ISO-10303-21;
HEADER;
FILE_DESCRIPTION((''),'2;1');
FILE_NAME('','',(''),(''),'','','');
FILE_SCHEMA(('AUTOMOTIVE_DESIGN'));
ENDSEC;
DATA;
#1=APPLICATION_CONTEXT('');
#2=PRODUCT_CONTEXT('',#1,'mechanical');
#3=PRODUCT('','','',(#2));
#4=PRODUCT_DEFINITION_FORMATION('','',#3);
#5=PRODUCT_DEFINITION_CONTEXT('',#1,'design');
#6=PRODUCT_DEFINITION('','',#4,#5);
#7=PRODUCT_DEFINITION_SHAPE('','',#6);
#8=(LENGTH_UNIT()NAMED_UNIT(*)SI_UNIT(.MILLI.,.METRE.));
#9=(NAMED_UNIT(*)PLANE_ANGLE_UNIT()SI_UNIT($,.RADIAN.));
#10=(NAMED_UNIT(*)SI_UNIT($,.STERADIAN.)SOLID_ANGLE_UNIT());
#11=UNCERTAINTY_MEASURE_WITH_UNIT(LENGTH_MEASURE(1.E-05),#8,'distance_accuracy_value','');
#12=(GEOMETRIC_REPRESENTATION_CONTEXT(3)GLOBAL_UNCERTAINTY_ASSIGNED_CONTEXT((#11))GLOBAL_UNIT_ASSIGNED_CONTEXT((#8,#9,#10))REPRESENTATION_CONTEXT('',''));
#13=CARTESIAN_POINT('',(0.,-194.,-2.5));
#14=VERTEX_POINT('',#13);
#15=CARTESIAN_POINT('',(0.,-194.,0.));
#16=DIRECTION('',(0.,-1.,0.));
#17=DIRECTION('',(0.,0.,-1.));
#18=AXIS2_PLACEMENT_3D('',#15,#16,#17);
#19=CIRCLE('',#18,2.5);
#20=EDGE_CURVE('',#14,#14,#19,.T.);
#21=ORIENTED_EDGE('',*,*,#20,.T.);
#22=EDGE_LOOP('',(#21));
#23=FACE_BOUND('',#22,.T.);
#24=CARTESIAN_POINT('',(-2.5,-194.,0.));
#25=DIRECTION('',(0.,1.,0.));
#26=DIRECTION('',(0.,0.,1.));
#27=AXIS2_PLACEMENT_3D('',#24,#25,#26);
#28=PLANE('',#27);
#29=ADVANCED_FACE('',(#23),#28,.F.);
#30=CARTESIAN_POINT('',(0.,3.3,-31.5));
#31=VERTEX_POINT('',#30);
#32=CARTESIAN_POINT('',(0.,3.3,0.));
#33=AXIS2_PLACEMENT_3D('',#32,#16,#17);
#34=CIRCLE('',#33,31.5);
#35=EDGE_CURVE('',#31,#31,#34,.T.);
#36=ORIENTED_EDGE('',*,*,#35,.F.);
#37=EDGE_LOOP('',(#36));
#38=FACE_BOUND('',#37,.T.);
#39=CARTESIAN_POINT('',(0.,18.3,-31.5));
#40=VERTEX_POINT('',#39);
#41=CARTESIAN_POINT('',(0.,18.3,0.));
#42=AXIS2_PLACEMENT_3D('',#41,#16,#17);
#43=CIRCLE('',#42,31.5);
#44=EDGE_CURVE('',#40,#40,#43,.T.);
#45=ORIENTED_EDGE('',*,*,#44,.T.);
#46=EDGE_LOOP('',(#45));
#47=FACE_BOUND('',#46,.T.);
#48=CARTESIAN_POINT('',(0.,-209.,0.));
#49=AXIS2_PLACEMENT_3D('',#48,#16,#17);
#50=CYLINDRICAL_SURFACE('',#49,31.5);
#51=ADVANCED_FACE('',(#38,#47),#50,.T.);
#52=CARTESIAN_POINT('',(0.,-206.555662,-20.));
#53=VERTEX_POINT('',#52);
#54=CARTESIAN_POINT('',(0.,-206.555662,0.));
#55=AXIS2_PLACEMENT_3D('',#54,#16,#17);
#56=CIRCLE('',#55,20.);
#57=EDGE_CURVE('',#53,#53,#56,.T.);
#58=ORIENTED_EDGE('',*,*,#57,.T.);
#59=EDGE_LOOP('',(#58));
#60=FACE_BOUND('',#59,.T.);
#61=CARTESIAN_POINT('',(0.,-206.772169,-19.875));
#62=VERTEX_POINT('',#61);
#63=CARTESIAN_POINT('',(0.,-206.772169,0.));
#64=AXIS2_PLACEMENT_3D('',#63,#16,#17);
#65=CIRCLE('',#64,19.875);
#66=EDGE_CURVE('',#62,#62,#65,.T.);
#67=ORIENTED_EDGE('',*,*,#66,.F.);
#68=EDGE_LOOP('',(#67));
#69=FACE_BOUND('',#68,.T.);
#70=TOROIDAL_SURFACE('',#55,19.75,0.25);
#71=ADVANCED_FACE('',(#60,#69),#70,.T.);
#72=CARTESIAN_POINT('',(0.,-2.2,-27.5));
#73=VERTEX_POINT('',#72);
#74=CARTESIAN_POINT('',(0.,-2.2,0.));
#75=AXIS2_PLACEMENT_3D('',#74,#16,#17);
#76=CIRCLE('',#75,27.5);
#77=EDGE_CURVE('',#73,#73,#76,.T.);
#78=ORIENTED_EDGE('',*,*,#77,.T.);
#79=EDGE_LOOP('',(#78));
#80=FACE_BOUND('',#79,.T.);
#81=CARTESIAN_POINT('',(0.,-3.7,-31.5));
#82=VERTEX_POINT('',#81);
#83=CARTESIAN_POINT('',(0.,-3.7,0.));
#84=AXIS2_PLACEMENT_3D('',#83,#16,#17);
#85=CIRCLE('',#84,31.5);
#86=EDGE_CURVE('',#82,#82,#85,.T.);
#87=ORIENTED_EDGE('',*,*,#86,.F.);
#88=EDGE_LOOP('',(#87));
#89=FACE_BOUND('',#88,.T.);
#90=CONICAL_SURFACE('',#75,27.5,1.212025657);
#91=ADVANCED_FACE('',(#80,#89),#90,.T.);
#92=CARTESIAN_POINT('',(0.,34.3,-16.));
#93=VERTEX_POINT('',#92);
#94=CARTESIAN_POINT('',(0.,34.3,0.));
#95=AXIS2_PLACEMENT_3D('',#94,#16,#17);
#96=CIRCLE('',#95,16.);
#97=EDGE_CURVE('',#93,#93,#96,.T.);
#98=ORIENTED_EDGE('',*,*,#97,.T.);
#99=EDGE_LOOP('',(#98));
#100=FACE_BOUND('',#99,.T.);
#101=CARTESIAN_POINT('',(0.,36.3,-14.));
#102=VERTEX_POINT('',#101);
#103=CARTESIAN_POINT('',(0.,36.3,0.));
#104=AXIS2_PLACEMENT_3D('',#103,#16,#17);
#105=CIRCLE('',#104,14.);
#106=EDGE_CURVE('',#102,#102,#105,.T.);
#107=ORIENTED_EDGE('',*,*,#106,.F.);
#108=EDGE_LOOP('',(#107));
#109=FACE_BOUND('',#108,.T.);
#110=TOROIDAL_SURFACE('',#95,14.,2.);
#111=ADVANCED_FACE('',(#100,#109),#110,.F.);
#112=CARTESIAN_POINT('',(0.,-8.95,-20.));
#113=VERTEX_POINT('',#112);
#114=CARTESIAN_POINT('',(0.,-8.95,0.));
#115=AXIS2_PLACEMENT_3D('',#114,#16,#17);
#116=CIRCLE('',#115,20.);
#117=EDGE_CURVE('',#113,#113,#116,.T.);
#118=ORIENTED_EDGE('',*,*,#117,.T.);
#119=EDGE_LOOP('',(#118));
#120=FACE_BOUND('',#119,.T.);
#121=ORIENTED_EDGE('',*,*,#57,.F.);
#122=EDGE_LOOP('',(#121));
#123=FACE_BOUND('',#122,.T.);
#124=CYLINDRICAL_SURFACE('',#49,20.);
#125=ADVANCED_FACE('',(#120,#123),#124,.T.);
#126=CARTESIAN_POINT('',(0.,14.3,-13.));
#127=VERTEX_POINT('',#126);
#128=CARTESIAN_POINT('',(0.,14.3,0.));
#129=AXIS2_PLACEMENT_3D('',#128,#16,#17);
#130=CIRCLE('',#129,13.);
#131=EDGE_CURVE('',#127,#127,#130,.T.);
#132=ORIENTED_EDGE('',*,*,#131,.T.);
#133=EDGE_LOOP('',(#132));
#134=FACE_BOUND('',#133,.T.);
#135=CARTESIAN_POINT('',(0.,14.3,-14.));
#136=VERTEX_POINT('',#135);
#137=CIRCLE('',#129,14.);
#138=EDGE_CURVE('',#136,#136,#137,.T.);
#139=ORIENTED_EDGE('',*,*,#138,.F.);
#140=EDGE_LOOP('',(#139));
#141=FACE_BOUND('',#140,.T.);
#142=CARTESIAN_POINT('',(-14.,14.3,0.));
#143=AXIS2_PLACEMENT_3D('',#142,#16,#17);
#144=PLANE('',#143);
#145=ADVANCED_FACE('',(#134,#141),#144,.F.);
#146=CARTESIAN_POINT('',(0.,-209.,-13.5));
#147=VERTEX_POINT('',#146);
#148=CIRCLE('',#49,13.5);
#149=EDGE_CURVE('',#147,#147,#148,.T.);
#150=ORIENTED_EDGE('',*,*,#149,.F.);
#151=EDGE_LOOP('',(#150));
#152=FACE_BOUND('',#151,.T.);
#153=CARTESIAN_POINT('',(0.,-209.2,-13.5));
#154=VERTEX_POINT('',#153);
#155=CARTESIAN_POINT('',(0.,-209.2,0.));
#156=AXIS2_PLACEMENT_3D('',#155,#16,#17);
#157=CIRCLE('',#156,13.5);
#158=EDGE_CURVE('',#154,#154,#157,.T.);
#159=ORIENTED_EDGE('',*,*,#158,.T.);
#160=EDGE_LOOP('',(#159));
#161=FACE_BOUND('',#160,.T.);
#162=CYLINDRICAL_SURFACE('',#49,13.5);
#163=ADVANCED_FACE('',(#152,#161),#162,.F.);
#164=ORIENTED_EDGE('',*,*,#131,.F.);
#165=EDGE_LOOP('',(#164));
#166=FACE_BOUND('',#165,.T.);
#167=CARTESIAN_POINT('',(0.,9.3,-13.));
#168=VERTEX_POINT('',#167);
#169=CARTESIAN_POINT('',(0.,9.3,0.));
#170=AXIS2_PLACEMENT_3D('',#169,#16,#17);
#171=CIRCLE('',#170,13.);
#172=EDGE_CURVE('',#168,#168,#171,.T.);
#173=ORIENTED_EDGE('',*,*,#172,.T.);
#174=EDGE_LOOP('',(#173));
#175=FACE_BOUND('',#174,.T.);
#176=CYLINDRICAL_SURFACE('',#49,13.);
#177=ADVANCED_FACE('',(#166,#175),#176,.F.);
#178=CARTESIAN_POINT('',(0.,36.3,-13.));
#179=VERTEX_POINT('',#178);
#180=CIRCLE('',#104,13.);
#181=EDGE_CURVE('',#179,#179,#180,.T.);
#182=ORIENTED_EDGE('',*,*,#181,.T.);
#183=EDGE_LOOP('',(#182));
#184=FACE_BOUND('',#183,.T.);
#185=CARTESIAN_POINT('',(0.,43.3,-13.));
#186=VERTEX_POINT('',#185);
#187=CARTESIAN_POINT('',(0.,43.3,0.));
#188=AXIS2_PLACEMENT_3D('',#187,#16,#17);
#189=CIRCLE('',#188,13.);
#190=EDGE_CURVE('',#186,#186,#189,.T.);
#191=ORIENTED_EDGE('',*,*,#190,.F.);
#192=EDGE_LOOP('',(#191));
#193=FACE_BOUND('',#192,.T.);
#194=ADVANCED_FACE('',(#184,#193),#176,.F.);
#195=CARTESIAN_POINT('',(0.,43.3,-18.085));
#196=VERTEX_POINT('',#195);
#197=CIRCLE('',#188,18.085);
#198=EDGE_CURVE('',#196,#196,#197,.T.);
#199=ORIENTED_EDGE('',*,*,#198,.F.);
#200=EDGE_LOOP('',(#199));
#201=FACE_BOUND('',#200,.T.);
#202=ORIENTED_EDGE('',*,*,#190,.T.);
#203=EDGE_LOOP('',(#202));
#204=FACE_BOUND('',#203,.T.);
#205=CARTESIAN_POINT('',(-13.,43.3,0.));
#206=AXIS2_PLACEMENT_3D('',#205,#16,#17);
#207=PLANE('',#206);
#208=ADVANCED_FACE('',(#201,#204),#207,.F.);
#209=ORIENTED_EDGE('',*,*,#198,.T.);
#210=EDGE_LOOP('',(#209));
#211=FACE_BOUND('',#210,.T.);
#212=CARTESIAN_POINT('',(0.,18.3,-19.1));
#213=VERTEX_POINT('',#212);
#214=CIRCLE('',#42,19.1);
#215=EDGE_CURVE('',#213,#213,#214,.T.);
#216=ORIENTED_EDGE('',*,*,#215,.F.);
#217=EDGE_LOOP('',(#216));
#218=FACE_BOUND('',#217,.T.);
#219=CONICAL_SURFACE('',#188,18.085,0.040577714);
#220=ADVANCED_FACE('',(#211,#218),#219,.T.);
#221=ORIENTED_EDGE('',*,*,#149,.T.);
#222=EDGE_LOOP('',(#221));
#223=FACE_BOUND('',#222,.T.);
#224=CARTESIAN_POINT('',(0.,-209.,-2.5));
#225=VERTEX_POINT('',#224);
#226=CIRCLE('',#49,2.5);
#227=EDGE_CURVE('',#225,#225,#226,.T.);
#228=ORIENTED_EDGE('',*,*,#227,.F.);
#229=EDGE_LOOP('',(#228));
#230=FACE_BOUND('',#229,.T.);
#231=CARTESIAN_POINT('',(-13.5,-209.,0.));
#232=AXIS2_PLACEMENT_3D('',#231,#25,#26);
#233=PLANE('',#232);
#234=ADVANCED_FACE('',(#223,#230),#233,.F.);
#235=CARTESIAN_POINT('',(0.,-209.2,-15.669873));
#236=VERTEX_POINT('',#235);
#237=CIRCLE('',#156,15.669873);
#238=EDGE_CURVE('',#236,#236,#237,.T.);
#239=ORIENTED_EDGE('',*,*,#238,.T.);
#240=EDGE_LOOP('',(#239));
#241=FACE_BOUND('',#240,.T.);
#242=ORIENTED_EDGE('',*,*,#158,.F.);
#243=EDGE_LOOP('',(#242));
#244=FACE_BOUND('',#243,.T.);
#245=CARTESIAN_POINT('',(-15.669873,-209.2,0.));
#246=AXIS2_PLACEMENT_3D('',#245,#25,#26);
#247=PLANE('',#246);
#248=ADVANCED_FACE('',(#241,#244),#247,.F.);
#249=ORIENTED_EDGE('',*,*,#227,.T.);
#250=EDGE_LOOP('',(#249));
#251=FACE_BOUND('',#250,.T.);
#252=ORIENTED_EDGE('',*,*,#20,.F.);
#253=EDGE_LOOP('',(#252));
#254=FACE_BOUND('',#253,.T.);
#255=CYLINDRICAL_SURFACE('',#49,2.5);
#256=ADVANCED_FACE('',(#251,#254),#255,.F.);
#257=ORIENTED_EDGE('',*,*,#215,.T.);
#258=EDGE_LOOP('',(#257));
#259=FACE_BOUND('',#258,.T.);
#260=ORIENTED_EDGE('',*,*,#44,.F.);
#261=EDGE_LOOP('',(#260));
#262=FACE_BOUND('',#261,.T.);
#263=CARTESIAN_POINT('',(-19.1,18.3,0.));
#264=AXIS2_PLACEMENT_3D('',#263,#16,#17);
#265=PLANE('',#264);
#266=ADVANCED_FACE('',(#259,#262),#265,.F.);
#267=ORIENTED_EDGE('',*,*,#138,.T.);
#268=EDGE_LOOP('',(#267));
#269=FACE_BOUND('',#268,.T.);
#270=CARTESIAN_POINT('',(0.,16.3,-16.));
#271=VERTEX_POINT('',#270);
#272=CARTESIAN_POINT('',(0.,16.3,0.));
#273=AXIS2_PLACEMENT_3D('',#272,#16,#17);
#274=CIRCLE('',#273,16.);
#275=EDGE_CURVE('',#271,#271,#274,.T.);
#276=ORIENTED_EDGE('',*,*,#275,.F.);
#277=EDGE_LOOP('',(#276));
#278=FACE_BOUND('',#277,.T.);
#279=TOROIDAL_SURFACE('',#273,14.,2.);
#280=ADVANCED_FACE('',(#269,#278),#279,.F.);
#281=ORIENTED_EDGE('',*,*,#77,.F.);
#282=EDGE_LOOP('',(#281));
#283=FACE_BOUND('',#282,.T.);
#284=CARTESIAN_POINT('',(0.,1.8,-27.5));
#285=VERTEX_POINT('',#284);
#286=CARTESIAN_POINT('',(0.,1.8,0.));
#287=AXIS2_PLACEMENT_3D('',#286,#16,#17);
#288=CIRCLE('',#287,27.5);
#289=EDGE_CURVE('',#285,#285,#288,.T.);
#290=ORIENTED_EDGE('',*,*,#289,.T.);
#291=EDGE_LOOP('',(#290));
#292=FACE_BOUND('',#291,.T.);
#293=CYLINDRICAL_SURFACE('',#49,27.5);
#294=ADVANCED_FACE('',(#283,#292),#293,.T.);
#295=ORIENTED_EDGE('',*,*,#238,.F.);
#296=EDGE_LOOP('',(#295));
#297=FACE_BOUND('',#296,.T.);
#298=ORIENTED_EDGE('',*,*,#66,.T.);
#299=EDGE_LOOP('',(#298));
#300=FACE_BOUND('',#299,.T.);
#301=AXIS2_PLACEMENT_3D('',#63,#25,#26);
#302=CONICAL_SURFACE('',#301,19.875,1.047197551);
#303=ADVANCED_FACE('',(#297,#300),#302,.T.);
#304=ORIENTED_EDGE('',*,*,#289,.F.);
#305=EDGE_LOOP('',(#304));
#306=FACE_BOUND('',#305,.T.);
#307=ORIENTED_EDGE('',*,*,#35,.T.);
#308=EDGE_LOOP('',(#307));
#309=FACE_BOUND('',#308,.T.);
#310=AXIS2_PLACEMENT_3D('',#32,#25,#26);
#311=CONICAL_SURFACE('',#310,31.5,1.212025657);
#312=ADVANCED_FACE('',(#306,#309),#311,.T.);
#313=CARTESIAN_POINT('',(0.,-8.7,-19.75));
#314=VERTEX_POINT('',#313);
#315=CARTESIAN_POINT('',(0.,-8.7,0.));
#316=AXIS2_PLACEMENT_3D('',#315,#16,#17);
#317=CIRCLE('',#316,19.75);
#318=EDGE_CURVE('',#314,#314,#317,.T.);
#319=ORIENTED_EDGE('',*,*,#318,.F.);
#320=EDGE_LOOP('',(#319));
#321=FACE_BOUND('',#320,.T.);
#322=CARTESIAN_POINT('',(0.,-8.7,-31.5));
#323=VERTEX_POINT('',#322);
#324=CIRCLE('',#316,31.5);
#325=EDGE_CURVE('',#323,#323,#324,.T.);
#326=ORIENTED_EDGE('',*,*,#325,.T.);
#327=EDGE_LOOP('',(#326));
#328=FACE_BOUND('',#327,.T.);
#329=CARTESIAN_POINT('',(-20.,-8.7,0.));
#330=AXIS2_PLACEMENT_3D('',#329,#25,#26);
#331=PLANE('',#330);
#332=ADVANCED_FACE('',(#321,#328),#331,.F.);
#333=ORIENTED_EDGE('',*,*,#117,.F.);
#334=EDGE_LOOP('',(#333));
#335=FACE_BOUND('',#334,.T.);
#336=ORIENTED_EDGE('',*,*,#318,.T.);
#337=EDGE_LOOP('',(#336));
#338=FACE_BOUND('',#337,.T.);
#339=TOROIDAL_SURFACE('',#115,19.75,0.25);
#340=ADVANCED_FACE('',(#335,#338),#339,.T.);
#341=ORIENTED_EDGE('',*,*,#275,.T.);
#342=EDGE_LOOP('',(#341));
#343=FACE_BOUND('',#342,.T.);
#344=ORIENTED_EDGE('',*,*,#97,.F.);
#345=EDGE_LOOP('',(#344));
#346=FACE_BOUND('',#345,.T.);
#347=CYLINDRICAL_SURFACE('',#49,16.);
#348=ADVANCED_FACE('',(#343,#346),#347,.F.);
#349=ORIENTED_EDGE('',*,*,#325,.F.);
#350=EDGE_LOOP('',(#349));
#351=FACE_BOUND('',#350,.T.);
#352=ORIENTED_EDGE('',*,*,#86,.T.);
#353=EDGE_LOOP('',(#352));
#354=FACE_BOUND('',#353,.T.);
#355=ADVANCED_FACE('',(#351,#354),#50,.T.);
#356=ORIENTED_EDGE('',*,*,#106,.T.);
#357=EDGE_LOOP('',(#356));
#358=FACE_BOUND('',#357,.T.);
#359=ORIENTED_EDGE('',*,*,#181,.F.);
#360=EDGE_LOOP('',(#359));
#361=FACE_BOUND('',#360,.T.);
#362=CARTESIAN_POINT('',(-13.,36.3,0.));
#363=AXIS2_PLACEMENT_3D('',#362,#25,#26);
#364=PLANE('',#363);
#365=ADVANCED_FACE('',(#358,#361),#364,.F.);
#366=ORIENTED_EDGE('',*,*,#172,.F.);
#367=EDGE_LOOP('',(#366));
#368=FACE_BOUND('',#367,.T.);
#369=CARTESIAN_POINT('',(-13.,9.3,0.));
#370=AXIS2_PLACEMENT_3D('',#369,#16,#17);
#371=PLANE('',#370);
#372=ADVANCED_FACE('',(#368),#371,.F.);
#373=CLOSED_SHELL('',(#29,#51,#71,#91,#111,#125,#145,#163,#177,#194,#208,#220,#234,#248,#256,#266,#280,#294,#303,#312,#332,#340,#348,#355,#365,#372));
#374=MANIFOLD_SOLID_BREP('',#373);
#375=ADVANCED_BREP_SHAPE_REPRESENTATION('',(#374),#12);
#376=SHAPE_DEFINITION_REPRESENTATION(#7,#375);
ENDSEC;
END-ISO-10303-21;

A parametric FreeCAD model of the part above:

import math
import FreeCAD as App
import Part
import Sketcher

V = App.Vector
Q = App.Units.Quantity

doc = App.newDocument("Part")
body = doc.addObject("PartDesign::Body", "Body")

sketch1 = body.newObject("Sketcher::SketchObject", "Sketch")
sketch1.AttachmentSupport = (doc.getObject("XY_Plane"), [""])
sketch1.MapMode = "FlatFace"
sketch1.addGeometry([
    Part.LineSegment(V(-13, 252.3, 0), V(-18.09, 252.3, 0)),
    Part.LineSegment(V(-18.09, 252.3, 0), V(-19.1, 227.3, 0)),
    Part.LineSegment(V(-19.1, 227.3, 0), V(-31.5, 227.3, 0)),
    Part.LineSegment(V(-31.5, 227.3, 0), V(-31.5, 212.3, 0)),
    Part.LineSegment(V(-31.5, 212.3, 0), V(-27.5, 210.8, 0)),
    Part.LineSegment(V(-27.5, 210.8, 0), V(-27.5, 206.8, 0)),
    Part.LineSegment(V(-27.5, 206.8, 0), V(-31.5, 205.3, 0)),
    Part.LineSegment(V(-31.5, 205.3, 0), V(-31.5, 200.3, 0)),
    Part.LineSegment(V(-31.5, 200.3, 0), V(-19.75, 200.3, 0)),
    Part.ArcOfCircle(Part.Circle(V(-19.75, 200.05, 0), V(0, 0, 1), 0.25), math.radians(90), math.radians(180)),
    Part.LineSegment(V(-20, 200.05, 0), V(-20, 2.44, 0)),
    Part.ArcOfCircle(Part.Circle(V(-19.75, 2.44, 0), V(0, 0, 1), 0.25), math.radians(180), math.radians(240)),
    Part.LineSegment(V(-19.88, 2.23, 0), V(-15.67, -0.2, 0)),
    Part.LineSegment(V(-15.67, -0.2, 0), V(-13.5, -0.2, 0)),
    Part.LineSegment(V(-13.5, -0.2, 0), V(-13.5, 0, 0)),
    Part.LineSegment(V(-13.5, 0, 0), V(-2.5, 0, 0)),
    Part.LineSegment(V(-2.5, 0, 0), V(-2.5, 15, 0)),
    Part.LineSegment(V(-2.5, 15, 0), V(0, 15, 0)),
    Part.LineSegment(V(0, 15, 0), V(0, 218.3, 0)),
    Part.LineSegment(V(0, 218.3, 0), V(-13, 218.3, 0)),
    Part.LineSegment(V(-13, 218.3, 0), V(-13, 223.3, 0)),
    Part.LineSegment(V(-13, 223.3, 0), V(-14, 223.3, 0)),
    Part.ArcOfCircle(Part.Circle(V(-14, 225.3, 0), V(0, 0, 1), 2), math.radians(-180), math.radians(-90)),
    Part.LineSegment(V(-16, 225.3, 0), V(-16, 243.3, 0)),
    Part.ArcOfCircle(Part.Circle(V(-14, 243.3, 0), V(0, 0, 1), 2), math.radians(90), math.radians(180)),
    Part.LineSegment(V(-14, 245.3, 0), V(-13, 245.3, 0)),
    Part.LineSegment(V(-13, 245.3, 0), V(-13, 252.3, 0)),
], False)
sketch1.addConstraint([
    Sketcher.Constraint("Coincident", 0, 2, 1, 1),
    Sketcher.Constraint("Coincident", 1, 2, 2, 1),
    Sketcher.Constraint("Coincident", 2, 2, 3, 1),
    Sketcher.Constraint("Coincident", 3, 2, 4, 1),
    Sketcher.Constraint("Coincident", 4, 2, 5, 1),
    Sketcher.Constraint("Coincident", 5, 2, 6, 1),
    Sketcher.Constraint("Coincident", 6, 2, 7, 1),
    Sketcher.Constraint("Coincident", 7, 2, 8, 1),
    Sketcher.Constraint("Tangent", 8, 2, 9, 1),
    Sketcher.Constraint("Tangent", 9, 2, 10, 1),
    Sketcher.Constraint("Tangent", 10, 2, 11, 1),
    Sketcher.Constraint("Tangent", 11, 2, 12, 1),
    Sketcher.Constraint("Coincident", 12, 2, 13, 1),
    Sketcher.Constraint("Coincident", 13, 2, 14, 1),
    Sketcher.Constraint("Coincident", 14, 2, 15, 1),
    Sketcher.Constraint("Coincident", 15, 2, 16, 1),
    Sketcher.Constraint("Coincident", 16, 2, 17, 1),
    Sketcher.Constraint("Coincident", 17, 2, 18, 1),
    Sketcher.Constraint("Coincident", 18, 2, 19, 1),
    Sketcher.Constraint("Coincident", 19, 2, 20, 1),
    Sketcher.Constraint("Coincident", 20, 2, 21, 1),
    Sketcher.Constraint("Tangent", 21, 2, 22, 2),
    Sketcher.Constraint("Tangent", 22, 1, 23, 1),
    Sketcher.Constraint("Tangent", 23, 2, 24, 2),
    Sketcher.Constraint("Tangent", 24, 1, 25, 1),
    Sketcher.Constraint("Coincident", 25, 2, 26, 1),
    Sketcher.Constraint("Coincident", 26, 2, 0, 1),
    Sketcher.Constraint("Horizontal", 0),
    Sketcher.Constraint("Horizontal", 2),
    Sketcher.Constraint("Vertical", 3),
    Sketcher.Constraint("Vertical", 5),
    Sketcher.Constraint("Vertical", 7),
    Sketcher.Constraint("Horizontal", 8),
    Sketcher.Constraint("Vertical", 10),
    Sketcher.Constraint("Horizontal", 13),
    Sketcher.Constraint("Vertical", 14),
    Sketcher.Constraint("Horizontal", 15),
    Sketcher.Constraint("Vertical", 16),
    Sketcher.Constraint("Horizontal", 17),
    Sketcher.Constraint("Vertical", 18),
    Sketcher.Constraint("Horizontal", 19),
    Sketcher.Constraint("Vertical", 20),
    Sketcher.Constraint("Horizontal", 21),
    Sketcher.Constraint("Vertical", 23),
    Sketcher.Constraint("Horizontal", 25),
    Sketcher.Constraint("Vertical", 26),
    Sketcher.Constraint("Equal", 9, 11),
    Sketcher.Constraint("Equal", 22, 24),
    Sketcher.Constraint("PointOnObject", 14, 2, -1),
    Sketcher.Constraint("PointOnObject", 17, 2, -2),
    Sketcher.Constraint("Vertical", 3, 2, 6, 2),
    Sketcher.Constraint("Vertical", 20, 2, 25, 2),
    Sketcher.Constraint("Equal", 3, 16),
    Sketcher.Constraint("Equal", 7, 20),
    Sketcher.Constraint("Equal", 4, 6),
    Sketcher.Constraint("Radius", 22, 2.0),
    Sketcher.Constraint("DistanceX", 15, 1, 15, 2, 11.0),
    Sketcher.Constraint("DistanceX", 19, 2, 19, 1, 13.0),
    Sketcher.Constraint("DistanceX", 21, 2, 21, 1, 1.0),
    Sketcher.Constraint("DistanceY", 3, 2, 3, 1, 15.0),
    Sketcher.Constraint("DistanceY", 5, 2, 5, 1, 4.0),
    Sketcher.Constraint("DistanceY", 7, 2, 7, 1, 5.0),
    Sketcher.Constraint("DistanceY", 23, 1, 23, 2, 18.0),
    Sketcher.Constraint("DistanceY", 26, 1, 26, 2, 7.0),
    Sketcher.Constraint("Angle", 12, Q("-30 deg")),
    Sketcher.Constraint("Radius", 9, 0.25),
    Sketcher.Constraint("DistanceX", 2, 2, 2, 1, 12.4),
    Sketcher.Constraint("DistanceX", 17, 1, 17, 2, 2.5),
    Sketcher.Constraint("DistanceY", 14, 1, 14, 2, 0.2),
    Sketcher.Constraint("DistanceY", 18, 1, 18, 2, 203.3),
    Sketcher.Constraint("DistanceX", 9, 2, -1, 1, 20.0),
    Sketcher.Constraint("DistanceY", 22, 3, 1, 2, 2.0),
    Sketcher.Constraint("DistanceX", 3, 2, 4, 2, 4.0),
    Sketcher.Constraint("DistanceY", 6, 2, 3, 2, 7.0),
    Sketcher.Constraint("DistanceX", 8, 1, 8, 2, 11.75),
    Sketcher.Constraint("DistanceX", 0, 2, 0, 1, 5.085),
    Sketcher.Constraint("DistanceX", 13, 1, 13, 2, 2.169873),
])
revolution = body.newObject("PartDesign::Revolution", "Revolution")
revolution.Profile = sketch1
revolution.ReferenceAxis = (sketch1, ["V_Axis"])
revolution.Angle = 360
body2 = doc.addObject("PartDesign::Body", "Body001")
doc.recompute()

body.Placement = App.Placement(V(0, -209, 0), App.Rotation(V(0, 0, 1), 0))
boolean = body2.newObject("PartDesign::Boolean", "Boolean")
boolean.Type = "Fuse"
boolean.addObjects([body])

doc.recompute()
